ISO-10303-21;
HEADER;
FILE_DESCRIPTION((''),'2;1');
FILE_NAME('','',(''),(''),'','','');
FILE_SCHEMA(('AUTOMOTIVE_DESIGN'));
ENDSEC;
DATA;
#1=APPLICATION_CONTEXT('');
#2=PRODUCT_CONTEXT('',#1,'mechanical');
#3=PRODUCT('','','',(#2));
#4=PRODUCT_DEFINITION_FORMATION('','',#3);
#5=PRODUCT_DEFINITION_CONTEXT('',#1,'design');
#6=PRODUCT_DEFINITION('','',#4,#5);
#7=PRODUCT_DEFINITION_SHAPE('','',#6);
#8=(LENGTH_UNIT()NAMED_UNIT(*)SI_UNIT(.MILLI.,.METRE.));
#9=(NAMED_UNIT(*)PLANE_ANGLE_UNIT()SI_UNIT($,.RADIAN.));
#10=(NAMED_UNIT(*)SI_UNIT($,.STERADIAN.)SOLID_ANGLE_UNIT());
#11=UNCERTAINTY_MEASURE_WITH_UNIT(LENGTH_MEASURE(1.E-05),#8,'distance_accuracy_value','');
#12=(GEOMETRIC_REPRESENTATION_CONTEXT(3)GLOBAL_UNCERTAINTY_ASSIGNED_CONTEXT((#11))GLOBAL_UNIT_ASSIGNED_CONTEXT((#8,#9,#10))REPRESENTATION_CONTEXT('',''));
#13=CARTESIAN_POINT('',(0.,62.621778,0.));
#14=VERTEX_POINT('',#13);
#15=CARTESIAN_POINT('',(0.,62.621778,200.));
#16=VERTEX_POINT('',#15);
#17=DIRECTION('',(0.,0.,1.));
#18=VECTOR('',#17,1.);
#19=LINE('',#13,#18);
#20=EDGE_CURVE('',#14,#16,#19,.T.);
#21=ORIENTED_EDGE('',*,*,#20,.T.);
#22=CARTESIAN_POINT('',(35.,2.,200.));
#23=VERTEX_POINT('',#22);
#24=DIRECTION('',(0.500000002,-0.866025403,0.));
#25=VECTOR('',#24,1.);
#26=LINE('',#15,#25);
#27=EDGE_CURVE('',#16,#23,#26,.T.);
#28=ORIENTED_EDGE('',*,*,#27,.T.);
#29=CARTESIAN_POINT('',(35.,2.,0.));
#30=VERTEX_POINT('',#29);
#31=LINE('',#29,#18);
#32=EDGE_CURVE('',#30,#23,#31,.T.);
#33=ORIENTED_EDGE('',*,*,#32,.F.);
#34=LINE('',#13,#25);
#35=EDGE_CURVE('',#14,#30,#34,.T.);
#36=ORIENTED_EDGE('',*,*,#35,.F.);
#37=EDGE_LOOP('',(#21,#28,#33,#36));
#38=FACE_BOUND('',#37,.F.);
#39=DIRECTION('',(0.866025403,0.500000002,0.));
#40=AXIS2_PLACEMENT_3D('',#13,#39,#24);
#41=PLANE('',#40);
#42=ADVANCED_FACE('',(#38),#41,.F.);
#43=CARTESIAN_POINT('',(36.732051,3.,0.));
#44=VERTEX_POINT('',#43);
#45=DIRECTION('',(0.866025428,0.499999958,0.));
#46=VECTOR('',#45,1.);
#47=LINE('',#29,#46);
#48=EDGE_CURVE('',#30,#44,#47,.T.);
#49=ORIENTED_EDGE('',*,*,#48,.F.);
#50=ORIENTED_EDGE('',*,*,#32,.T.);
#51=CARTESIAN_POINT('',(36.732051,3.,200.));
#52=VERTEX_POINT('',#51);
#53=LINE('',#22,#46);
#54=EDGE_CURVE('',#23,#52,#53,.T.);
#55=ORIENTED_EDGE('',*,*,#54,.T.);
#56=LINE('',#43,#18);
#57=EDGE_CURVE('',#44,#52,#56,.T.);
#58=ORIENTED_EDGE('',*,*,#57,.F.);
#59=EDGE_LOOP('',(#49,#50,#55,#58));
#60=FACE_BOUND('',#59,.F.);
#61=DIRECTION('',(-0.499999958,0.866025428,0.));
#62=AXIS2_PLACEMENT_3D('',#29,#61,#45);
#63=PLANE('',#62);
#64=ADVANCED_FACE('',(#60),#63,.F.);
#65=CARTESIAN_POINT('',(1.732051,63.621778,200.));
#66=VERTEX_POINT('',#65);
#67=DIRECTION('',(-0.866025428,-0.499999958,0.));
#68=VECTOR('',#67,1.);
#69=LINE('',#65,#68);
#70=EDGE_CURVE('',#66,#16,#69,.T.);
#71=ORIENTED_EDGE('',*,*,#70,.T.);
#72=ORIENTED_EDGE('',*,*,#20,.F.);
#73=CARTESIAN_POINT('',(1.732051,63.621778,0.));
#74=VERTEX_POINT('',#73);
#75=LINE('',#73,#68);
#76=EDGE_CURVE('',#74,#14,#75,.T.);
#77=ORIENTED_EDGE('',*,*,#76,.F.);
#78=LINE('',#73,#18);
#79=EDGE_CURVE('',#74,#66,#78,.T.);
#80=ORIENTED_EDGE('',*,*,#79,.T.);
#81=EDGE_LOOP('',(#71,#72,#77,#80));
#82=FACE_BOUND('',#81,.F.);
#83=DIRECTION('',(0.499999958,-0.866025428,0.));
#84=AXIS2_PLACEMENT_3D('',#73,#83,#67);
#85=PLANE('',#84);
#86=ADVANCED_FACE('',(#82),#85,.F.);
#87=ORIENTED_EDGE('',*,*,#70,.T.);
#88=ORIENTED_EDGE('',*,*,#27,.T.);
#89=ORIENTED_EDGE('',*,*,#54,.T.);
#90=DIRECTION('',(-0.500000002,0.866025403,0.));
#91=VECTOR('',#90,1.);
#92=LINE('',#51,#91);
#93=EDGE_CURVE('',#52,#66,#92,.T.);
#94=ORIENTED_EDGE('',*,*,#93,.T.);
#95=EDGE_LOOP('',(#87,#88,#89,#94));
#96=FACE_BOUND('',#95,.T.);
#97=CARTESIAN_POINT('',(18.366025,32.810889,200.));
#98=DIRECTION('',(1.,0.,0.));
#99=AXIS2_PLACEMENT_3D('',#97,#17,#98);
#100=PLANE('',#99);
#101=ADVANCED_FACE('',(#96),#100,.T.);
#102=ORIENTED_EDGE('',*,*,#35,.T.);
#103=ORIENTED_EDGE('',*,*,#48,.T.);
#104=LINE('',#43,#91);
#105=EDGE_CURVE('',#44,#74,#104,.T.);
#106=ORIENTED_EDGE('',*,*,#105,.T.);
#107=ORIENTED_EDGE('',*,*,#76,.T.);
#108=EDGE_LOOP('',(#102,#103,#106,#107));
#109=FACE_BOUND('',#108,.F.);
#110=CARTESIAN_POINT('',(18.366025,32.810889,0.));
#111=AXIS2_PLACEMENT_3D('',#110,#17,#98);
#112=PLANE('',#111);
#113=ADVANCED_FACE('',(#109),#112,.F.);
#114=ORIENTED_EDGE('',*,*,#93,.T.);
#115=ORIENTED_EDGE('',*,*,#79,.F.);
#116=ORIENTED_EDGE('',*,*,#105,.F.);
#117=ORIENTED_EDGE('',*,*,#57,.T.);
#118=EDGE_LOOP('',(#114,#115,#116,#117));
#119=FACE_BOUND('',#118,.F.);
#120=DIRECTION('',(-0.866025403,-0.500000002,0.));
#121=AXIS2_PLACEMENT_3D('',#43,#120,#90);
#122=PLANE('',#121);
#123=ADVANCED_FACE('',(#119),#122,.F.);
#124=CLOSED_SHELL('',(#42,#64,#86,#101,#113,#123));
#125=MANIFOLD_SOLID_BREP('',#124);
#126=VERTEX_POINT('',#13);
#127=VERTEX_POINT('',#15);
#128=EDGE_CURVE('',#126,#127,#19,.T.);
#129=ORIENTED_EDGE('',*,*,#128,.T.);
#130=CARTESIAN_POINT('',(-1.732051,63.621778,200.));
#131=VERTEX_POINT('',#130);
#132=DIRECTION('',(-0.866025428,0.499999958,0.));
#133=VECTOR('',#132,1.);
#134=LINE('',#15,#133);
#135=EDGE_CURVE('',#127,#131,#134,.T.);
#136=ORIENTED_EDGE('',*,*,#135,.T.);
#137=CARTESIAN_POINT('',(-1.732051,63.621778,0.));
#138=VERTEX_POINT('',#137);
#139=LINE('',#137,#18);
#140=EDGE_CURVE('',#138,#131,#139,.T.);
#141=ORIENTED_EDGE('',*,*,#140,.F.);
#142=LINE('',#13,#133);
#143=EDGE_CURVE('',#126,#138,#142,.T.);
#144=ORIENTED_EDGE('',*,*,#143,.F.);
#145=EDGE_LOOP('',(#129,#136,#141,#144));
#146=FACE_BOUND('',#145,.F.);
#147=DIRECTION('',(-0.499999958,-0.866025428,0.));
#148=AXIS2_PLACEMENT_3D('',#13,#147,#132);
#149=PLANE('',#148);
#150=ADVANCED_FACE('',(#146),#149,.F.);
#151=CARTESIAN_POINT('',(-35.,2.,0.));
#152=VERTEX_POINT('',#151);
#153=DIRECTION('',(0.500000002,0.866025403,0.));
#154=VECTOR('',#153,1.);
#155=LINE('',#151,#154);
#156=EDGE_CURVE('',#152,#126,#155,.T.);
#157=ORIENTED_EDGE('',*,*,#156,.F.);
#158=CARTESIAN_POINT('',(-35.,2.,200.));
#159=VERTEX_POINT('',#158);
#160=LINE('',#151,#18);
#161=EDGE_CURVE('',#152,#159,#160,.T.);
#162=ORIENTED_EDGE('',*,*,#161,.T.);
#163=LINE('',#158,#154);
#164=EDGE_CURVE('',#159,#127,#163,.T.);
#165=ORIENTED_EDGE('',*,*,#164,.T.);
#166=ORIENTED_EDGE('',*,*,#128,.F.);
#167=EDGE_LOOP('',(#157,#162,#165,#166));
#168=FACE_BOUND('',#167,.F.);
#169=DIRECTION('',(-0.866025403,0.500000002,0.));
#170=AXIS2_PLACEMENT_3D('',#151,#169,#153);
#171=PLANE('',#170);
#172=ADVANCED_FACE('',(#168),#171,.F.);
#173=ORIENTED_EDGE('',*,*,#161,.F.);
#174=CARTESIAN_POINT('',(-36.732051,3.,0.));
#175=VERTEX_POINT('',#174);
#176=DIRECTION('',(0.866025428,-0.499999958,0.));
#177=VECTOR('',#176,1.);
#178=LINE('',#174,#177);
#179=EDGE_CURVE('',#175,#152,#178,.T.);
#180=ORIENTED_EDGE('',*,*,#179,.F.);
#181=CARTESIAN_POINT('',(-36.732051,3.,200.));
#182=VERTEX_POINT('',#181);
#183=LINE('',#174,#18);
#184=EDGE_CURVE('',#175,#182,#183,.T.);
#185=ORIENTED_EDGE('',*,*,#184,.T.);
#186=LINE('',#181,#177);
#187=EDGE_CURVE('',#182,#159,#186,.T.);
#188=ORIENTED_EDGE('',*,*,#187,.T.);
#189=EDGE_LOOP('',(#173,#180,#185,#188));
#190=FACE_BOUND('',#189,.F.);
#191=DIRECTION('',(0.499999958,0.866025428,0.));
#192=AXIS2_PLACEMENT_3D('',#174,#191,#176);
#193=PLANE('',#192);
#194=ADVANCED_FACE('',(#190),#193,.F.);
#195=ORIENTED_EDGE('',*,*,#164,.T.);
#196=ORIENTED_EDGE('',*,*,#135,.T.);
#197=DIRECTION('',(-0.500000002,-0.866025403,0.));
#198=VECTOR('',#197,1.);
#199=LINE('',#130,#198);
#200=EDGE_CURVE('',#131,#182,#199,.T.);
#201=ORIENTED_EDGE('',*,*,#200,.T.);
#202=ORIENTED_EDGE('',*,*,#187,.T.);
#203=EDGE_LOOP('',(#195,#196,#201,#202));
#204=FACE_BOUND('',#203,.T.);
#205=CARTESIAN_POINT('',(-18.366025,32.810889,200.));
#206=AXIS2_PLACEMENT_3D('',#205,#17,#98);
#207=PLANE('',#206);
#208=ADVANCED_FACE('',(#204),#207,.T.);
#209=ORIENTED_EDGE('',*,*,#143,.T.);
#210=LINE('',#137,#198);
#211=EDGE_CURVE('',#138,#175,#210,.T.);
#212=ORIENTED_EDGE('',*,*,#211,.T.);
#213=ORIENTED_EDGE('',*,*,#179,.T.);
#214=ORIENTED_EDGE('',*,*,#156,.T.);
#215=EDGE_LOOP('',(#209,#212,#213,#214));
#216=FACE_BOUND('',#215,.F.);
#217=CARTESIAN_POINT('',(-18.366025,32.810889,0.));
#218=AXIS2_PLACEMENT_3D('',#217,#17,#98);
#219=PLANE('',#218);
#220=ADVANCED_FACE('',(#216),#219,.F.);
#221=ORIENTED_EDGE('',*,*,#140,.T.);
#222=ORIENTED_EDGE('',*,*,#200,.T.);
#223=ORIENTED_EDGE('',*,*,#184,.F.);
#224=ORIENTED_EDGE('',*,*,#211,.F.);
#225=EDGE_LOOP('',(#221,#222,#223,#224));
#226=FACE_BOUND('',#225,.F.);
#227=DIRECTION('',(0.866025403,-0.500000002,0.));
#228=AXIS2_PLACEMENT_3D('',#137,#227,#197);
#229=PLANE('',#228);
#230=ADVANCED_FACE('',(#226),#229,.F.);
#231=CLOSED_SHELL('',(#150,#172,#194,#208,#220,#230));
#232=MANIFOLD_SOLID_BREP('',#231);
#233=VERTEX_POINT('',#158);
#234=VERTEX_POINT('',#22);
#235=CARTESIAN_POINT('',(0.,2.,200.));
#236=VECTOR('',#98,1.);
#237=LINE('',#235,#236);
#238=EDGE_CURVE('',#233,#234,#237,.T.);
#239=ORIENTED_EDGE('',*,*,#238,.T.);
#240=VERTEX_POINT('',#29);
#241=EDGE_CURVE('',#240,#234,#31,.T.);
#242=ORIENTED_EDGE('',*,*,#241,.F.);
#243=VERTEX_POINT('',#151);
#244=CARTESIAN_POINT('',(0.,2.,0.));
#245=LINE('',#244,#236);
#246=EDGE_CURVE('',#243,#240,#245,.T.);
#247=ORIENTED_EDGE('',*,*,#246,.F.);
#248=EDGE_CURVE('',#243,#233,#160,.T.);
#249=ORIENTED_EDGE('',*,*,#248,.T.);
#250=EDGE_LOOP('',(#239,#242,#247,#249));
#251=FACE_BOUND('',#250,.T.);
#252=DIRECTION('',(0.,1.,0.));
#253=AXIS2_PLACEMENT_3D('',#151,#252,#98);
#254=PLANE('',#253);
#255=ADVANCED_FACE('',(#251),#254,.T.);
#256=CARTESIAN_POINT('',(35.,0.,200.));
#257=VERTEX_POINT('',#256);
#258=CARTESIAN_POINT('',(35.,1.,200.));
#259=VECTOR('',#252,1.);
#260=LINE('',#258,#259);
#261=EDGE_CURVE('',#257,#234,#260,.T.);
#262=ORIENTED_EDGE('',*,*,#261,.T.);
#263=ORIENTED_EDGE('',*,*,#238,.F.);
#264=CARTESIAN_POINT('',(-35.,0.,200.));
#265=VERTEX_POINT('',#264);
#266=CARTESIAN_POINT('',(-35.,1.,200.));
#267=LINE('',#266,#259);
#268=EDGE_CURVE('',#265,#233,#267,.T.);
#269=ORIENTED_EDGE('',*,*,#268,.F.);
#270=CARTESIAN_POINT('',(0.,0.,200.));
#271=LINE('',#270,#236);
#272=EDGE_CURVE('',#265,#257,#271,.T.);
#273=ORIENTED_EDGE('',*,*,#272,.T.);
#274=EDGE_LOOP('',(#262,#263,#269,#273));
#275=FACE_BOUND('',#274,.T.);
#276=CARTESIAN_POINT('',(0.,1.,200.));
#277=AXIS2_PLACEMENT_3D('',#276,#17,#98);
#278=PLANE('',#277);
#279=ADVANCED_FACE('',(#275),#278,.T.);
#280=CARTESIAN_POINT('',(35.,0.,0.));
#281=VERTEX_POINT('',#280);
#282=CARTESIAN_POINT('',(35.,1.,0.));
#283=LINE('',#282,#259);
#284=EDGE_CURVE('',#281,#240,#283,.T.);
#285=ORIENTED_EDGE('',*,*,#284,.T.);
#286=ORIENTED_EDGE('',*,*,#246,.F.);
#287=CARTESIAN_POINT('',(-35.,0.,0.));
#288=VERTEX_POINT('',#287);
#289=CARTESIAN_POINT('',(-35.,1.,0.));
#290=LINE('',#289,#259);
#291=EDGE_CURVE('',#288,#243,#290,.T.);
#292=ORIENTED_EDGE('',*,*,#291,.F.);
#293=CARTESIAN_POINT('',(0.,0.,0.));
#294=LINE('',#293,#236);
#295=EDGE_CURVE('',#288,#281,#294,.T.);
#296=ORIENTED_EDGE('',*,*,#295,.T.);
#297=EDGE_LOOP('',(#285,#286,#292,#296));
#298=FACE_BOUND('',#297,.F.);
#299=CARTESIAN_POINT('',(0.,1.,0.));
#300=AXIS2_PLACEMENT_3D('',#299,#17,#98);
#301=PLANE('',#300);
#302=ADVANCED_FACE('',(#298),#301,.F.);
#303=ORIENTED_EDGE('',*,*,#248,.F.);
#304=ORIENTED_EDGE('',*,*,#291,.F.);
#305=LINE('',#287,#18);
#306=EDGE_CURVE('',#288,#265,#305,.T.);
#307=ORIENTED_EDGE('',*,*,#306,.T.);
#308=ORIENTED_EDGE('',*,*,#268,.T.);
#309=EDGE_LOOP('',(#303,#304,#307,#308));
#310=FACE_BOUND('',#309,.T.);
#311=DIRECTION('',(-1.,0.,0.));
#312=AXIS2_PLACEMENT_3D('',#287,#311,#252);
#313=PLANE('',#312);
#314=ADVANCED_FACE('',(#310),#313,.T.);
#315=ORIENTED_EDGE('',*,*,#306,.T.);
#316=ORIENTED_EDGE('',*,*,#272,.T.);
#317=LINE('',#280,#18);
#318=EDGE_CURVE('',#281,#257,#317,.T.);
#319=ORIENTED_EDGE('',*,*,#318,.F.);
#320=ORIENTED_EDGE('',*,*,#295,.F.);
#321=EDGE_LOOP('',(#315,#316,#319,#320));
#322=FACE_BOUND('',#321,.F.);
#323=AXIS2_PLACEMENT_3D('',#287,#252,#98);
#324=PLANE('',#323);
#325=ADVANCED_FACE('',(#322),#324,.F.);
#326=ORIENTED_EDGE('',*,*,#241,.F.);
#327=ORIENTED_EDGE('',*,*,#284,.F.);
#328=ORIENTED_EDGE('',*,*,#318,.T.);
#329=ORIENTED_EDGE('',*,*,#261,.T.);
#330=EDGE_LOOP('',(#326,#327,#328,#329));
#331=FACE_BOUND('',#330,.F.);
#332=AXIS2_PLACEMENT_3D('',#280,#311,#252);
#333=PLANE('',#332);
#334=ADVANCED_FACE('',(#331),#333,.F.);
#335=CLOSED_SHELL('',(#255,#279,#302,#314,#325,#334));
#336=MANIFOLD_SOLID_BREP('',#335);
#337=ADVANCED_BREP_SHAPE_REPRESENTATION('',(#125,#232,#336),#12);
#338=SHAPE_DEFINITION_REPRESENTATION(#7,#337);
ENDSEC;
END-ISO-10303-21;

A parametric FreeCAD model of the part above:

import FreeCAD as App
import Part
import Sketcher

V = App.Vector
Q = App.Units.Quantity


def add_polygon(sketch, points):
    """Adds a closed chain of lines whose ends are joined by coincident constraints."""
    first, n = sketch.GeometryCount, len(points)
    for a, b in zip(points, points[1:] + points[:1]):
        sketch.addGeometry(Part.LineSegment(App.Vector(*a, 0), App.Vector(*b, 0)), False)
    for i in range(n):
        sketch.addConstraint(Sketcher.Constraint("Coincident", first + i, 2, first + (i + 1) % n, 1))

doc = App.newDocument("Part")
body = doc.addObject("PartDesign::Body", "Body")
body.AllowCompound = True

# Sketch on XY plane
sketch1 = doc.addObject("Sketcher::SketchObject", "Sketch")
body.addObject(sketch1)
sketch1.AttachmentSupport = (doc.XY_Plane, [""])
sketch1.MapMode = "FlatFace"
add_polygon(sketch1, [(-36.7, 3), (-35, 2), (0, 62.6), (-1.7, 63.6)])  # lines 0-3
add_polygon(sketch1, [(-35, 2), (-35, 0), (35, 0), (35, 2)])  # lines 4-7
add_polygon(sketch1, [(0, 62.6), (35, 2), (36.7, 3), (1.7, 63.6)])  # lines 8-11
sketch1.addConstraint([
    Sketcher.Constraint("Vertical", 4),
    Sketcher.Constraint("Horizontal", 5),
    Sketcher.Constraint("Vertical", 6),
    Sketcher.Constraint("Horizontal", 7),
    Sketcher.Constraint("Coincident", 7, 2, 0, 2),
    Sketcher.Constraint("Coincident", 8, 2, 6, 2),
    Sketcher.Constraint("Coincident", 11, 2, 1, 2),
    Sketcher.Constraint("Symmetric", 4, 2, 5, 2, -1, 1),
    Sketcher.Constraint("Symmetric", 3, 2, 9, 2, -2),
    Sketcher.Constraint("Symmetric", 2, 2, 10, 2, -2),
    Sketcher.Constraint("PointOnObject", 1, 2, -2),
    Sketcher.Constraint("Perpendicular", 0, 1),
    Sketcher.Constraint("Perpendicular", 1, 2),
    Sketcher.Constraint("Perpendicular", 2, 3),
    Sketcher.Constraint("DistanceX", 5, 1, 5, 2, 70.0),
    Sketcher.Constraint("DistanceY", 4, 2, 4, 1, 2.0),
    Sketcher.Constraint("Angle", 0, Q("-29.999997 deg")),
    Sketcher.Constraint("Distance", 0, 2.0),
])
pad1 = doc.addObject("PartDesign::Pad", "Pad")
body.addObject(pad1)
pad1.Profile = sketch1
pad1.Length = 200

doc.recompute()
